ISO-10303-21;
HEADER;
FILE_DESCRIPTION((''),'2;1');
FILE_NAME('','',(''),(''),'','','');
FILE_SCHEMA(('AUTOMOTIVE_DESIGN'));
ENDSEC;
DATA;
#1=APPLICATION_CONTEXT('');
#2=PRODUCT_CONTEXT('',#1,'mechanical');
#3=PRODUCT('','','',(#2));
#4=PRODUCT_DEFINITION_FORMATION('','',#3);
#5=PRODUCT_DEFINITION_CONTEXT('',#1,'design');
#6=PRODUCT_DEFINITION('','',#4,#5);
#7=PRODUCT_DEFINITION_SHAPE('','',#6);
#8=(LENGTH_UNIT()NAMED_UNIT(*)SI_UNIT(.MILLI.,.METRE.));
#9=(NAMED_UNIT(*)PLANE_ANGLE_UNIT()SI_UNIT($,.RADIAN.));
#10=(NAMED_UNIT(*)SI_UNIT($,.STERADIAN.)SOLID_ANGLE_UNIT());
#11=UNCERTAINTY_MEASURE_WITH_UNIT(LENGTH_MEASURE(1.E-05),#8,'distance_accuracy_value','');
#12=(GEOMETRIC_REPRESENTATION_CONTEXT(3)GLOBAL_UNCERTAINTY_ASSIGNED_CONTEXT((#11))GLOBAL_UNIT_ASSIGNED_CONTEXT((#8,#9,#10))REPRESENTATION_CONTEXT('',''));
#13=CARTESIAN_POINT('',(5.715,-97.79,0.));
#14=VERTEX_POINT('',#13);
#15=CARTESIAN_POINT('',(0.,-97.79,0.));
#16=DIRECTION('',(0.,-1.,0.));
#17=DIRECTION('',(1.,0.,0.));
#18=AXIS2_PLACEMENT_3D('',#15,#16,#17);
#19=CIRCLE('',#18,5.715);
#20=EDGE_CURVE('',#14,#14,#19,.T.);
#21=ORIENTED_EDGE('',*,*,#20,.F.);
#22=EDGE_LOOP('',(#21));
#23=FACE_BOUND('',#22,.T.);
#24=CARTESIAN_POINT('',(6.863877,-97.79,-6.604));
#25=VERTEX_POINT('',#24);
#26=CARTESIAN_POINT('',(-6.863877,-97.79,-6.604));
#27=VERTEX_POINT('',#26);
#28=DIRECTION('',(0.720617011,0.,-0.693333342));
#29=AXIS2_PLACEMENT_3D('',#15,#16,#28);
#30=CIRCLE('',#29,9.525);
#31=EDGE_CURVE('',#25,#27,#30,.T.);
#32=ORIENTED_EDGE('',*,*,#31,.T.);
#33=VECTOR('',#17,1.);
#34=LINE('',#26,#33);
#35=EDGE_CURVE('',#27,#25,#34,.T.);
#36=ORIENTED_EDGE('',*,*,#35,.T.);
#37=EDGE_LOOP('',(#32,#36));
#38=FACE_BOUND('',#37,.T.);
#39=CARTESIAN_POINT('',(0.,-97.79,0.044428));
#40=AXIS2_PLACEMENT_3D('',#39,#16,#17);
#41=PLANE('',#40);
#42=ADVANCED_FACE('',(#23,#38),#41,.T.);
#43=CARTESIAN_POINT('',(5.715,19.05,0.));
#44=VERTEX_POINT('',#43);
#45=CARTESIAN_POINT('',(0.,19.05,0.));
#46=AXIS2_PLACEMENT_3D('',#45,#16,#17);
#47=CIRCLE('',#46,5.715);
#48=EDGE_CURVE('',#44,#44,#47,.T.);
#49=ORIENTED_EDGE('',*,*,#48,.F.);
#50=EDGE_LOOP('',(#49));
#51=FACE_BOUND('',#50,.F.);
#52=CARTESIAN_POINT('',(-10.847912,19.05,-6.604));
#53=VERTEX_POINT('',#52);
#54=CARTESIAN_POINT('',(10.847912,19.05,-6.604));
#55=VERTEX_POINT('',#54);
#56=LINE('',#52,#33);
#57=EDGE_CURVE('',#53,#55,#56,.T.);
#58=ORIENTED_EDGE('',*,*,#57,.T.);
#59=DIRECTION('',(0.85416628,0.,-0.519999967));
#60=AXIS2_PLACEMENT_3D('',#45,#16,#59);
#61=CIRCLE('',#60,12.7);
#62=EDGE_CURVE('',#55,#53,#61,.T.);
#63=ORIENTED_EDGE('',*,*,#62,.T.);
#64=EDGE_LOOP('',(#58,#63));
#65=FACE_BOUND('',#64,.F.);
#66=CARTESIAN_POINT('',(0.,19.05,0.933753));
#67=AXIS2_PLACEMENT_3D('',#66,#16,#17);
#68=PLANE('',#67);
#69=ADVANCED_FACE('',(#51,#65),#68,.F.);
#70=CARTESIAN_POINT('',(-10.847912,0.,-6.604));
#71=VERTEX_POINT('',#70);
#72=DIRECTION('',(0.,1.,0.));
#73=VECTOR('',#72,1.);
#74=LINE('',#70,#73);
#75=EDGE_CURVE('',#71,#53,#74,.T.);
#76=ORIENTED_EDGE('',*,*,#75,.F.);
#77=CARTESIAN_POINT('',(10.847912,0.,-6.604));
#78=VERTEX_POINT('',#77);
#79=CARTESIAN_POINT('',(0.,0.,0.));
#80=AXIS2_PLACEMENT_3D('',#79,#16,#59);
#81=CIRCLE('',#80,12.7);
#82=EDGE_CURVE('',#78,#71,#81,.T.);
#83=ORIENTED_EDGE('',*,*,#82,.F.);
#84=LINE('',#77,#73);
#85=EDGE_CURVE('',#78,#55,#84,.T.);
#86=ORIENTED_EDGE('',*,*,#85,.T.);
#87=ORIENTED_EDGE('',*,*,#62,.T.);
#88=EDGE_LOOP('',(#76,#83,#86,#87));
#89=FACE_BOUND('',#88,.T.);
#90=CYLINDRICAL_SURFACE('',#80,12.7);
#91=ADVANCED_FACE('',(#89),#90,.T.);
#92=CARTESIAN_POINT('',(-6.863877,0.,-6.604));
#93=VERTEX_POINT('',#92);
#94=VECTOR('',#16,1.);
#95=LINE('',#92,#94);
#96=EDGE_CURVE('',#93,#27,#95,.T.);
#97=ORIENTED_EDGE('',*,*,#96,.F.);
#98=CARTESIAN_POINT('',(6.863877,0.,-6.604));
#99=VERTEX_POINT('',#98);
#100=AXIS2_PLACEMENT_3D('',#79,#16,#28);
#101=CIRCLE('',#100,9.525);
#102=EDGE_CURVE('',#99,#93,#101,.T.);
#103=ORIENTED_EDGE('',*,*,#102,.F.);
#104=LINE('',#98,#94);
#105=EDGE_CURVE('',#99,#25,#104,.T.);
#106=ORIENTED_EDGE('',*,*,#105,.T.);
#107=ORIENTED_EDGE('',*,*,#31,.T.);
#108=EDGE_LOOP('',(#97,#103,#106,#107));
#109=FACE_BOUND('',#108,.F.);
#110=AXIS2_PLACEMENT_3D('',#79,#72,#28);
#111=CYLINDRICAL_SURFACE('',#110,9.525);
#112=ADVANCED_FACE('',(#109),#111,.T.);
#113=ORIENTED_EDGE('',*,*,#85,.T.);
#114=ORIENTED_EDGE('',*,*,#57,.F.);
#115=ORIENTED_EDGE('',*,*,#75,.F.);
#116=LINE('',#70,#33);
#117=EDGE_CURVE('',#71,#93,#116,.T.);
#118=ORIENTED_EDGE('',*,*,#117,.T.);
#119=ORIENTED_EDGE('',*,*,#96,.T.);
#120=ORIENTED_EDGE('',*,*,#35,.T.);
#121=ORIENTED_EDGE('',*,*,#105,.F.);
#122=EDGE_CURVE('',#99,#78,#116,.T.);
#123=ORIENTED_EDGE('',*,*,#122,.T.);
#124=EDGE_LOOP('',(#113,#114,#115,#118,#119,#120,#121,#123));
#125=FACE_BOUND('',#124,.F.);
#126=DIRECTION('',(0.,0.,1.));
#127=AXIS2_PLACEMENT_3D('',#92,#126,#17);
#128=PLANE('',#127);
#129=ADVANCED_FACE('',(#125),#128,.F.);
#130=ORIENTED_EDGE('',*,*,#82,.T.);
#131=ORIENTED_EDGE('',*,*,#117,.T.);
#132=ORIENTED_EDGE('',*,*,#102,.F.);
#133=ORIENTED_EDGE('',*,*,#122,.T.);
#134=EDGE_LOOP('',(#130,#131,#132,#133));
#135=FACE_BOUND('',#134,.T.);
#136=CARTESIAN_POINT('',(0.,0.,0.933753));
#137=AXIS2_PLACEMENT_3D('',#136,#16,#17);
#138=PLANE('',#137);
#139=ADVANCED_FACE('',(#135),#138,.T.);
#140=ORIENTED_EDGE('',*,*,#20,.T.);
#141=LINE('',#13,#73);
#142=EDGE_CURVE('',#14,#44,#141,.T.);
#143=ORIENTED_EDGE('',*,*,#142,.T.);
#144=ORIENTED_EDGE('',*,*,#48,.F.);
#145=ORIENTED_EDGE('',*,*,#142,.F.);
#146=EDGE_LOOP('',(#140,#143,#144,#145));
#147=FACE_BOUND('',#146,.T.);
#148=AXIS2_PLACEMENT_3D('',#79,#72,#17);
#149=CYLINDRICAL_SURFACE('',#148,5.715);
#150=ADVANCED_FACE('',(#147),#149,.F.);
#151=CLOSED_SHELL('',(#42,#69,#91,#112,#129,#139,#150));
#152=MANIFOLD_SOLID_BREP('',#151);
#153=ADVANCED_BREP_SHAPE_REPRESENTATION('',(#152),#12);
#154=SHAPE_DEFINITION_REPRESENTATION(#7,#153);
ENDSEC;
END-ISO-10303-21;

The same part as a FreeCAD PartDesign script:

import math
import FreeCAD as App
import Part
import Sketcher
from FreeCAD import Vector
Q = App.Units.Quantity

doc = App.newDocument("Part")
params = doc.addObject("Spreadsheet::Sheet", "Params")
for row, (alias, value) in enumerate([
    ("sketch1_radius", "0.5 in"),
    ("sketch1_diameter", "0.45 in"),
    ("pad1_length", "0.75 in"),
    ("sketch2_diameter", "0.45 in"),
    ("sketch2_radius", "0.375 in"),
    ("pad2_length", "3.85 in"),
], start=1):
    params.set(f"A{row}", alias)
    params.set(f"B{row}", "=" + value)
    params.setAlias(f"B{row}", alias)

body = doc.addObject("PartDesign::Body", "Body")

sketch1 = body.newObject("Sketcher::SketchObject", "Sketch")
sketch1.AttachmentSupport = (doc.getObject("XZ_Plane"), [""])
sketch1.MapMode = "FlatFace"
sketch1.addGeometry(Part.LineSegment(Vector(-11, -7, 0), Vector(11, -7, 0)), False)
sketch1.addGeometry(Part.ArcOfCircle(Part.Circle(Vector(0, 0, 0), Vector(0, 0, 1), 13), math.radians(-31), math.radians(211)), False)
sketch1.addGeometry(Part.Circle(Vector(0, 0, 0), Vector(0, 0, 1), 6), False)
sketch1.addConstraint(Sketcher.Constraint("Coincident", 0, 1, 1, 2))
sketch1.addConstraint(Sketcher.Constraint("Coincident", 1, 1, 0, 2))
sketch1.addConstraint(Sketcher.Constraint("Horizontal", 0))
sketch1.addConstraint(Sketcher.Constraint("Coincident", 1, 3, -1, 1))
sketch1.addConstraint(Sketcher.Constraint("Coincident", 2, 3, -1, 1))
sketch1.addConstraint(Sketcher.Constraint("Radius", 1, Q("0.5 in")))
sketch1.addConstraint(Sketcher.Constraint("Diameter", 2, Q("0.45 in")))
sketch1.addConstraint(Sketcher.Constraint("DistanceY", 0, 1, -1, 1, Q("0.26 in")))
sketch1.setExpression("Constraints[5]", "Params.sketch1_radius")
sketch1.setExpression("Constraints[6]", "Params.sketch1_diameter")
pad1 = body.newObject("PartDesign::Pad", "Pad")
pad1.Profile = sketch1
pad1.setExpression("Length", "Params.pad1_length")
pad1.Reversed = True

sketch2 = body.newObject("Sketcher::SketchObject", "Sketch001")
sketch2.AttachmentSupport = (doc.getObject("XZ_Plane"), [""])
sketch2.MapMode = "FlatFace"
sketch2.addGeometry(Part.LineSegment(Vector(-7, -7, 0), Vector(7, -7, 0)), False)
sketch2.addGeometry(Part.ArcOfCircle(Part.Circle(Vector(0, 0, 0), Vector(0, 0, 1), 10), math.radians(-44), math.radians(224)), False)
sketch2.addGeometry(Part.Circle(Vector(0, 0, 0), Vector(0, 0, 1), 6), False)
sketch2.addConstraint(Sketcher.Constraint("Coincident", 0, 1, 1, 2))
sketch2.addConstraint(Sketcher.Constraint("Coincident", 1, 1, 0, 2))
sketch2.addConstraint(Sketcher.Constraint("Horizontal", 0))
sketch2.addConstraint(Sketcher.Constraint("Coincident", 1, 3, -1, 1))
sketch2.addConstraint(Sketcher.Constraint("Coincident", 2, 3, -1, 1))
sketch2.addConstraint(Sketcher.Constraint("Diameter", 2, Q("0.45 in")))
sketch2.addConstraint(Sketcher.Constraint("Radius", 1, Q("0.375 in")))
sketch2.addConstraint(Sketcher.Constraint("DistanceY", 0, 1, -1, 1, Q("0.26 in")))
sketch2.setExpression("Constraints[5]", "Params.sketch2_diameter")
sketch2.setExpression("Constraints[6]", "Params.sketch2_radius")
pad2 = body.newObject("PartDesign::Pad", "Pad001")
pad2.Profile = sketch2
pad2.setExpression("Length", "Params.pad2_length")

doc.recompute()
